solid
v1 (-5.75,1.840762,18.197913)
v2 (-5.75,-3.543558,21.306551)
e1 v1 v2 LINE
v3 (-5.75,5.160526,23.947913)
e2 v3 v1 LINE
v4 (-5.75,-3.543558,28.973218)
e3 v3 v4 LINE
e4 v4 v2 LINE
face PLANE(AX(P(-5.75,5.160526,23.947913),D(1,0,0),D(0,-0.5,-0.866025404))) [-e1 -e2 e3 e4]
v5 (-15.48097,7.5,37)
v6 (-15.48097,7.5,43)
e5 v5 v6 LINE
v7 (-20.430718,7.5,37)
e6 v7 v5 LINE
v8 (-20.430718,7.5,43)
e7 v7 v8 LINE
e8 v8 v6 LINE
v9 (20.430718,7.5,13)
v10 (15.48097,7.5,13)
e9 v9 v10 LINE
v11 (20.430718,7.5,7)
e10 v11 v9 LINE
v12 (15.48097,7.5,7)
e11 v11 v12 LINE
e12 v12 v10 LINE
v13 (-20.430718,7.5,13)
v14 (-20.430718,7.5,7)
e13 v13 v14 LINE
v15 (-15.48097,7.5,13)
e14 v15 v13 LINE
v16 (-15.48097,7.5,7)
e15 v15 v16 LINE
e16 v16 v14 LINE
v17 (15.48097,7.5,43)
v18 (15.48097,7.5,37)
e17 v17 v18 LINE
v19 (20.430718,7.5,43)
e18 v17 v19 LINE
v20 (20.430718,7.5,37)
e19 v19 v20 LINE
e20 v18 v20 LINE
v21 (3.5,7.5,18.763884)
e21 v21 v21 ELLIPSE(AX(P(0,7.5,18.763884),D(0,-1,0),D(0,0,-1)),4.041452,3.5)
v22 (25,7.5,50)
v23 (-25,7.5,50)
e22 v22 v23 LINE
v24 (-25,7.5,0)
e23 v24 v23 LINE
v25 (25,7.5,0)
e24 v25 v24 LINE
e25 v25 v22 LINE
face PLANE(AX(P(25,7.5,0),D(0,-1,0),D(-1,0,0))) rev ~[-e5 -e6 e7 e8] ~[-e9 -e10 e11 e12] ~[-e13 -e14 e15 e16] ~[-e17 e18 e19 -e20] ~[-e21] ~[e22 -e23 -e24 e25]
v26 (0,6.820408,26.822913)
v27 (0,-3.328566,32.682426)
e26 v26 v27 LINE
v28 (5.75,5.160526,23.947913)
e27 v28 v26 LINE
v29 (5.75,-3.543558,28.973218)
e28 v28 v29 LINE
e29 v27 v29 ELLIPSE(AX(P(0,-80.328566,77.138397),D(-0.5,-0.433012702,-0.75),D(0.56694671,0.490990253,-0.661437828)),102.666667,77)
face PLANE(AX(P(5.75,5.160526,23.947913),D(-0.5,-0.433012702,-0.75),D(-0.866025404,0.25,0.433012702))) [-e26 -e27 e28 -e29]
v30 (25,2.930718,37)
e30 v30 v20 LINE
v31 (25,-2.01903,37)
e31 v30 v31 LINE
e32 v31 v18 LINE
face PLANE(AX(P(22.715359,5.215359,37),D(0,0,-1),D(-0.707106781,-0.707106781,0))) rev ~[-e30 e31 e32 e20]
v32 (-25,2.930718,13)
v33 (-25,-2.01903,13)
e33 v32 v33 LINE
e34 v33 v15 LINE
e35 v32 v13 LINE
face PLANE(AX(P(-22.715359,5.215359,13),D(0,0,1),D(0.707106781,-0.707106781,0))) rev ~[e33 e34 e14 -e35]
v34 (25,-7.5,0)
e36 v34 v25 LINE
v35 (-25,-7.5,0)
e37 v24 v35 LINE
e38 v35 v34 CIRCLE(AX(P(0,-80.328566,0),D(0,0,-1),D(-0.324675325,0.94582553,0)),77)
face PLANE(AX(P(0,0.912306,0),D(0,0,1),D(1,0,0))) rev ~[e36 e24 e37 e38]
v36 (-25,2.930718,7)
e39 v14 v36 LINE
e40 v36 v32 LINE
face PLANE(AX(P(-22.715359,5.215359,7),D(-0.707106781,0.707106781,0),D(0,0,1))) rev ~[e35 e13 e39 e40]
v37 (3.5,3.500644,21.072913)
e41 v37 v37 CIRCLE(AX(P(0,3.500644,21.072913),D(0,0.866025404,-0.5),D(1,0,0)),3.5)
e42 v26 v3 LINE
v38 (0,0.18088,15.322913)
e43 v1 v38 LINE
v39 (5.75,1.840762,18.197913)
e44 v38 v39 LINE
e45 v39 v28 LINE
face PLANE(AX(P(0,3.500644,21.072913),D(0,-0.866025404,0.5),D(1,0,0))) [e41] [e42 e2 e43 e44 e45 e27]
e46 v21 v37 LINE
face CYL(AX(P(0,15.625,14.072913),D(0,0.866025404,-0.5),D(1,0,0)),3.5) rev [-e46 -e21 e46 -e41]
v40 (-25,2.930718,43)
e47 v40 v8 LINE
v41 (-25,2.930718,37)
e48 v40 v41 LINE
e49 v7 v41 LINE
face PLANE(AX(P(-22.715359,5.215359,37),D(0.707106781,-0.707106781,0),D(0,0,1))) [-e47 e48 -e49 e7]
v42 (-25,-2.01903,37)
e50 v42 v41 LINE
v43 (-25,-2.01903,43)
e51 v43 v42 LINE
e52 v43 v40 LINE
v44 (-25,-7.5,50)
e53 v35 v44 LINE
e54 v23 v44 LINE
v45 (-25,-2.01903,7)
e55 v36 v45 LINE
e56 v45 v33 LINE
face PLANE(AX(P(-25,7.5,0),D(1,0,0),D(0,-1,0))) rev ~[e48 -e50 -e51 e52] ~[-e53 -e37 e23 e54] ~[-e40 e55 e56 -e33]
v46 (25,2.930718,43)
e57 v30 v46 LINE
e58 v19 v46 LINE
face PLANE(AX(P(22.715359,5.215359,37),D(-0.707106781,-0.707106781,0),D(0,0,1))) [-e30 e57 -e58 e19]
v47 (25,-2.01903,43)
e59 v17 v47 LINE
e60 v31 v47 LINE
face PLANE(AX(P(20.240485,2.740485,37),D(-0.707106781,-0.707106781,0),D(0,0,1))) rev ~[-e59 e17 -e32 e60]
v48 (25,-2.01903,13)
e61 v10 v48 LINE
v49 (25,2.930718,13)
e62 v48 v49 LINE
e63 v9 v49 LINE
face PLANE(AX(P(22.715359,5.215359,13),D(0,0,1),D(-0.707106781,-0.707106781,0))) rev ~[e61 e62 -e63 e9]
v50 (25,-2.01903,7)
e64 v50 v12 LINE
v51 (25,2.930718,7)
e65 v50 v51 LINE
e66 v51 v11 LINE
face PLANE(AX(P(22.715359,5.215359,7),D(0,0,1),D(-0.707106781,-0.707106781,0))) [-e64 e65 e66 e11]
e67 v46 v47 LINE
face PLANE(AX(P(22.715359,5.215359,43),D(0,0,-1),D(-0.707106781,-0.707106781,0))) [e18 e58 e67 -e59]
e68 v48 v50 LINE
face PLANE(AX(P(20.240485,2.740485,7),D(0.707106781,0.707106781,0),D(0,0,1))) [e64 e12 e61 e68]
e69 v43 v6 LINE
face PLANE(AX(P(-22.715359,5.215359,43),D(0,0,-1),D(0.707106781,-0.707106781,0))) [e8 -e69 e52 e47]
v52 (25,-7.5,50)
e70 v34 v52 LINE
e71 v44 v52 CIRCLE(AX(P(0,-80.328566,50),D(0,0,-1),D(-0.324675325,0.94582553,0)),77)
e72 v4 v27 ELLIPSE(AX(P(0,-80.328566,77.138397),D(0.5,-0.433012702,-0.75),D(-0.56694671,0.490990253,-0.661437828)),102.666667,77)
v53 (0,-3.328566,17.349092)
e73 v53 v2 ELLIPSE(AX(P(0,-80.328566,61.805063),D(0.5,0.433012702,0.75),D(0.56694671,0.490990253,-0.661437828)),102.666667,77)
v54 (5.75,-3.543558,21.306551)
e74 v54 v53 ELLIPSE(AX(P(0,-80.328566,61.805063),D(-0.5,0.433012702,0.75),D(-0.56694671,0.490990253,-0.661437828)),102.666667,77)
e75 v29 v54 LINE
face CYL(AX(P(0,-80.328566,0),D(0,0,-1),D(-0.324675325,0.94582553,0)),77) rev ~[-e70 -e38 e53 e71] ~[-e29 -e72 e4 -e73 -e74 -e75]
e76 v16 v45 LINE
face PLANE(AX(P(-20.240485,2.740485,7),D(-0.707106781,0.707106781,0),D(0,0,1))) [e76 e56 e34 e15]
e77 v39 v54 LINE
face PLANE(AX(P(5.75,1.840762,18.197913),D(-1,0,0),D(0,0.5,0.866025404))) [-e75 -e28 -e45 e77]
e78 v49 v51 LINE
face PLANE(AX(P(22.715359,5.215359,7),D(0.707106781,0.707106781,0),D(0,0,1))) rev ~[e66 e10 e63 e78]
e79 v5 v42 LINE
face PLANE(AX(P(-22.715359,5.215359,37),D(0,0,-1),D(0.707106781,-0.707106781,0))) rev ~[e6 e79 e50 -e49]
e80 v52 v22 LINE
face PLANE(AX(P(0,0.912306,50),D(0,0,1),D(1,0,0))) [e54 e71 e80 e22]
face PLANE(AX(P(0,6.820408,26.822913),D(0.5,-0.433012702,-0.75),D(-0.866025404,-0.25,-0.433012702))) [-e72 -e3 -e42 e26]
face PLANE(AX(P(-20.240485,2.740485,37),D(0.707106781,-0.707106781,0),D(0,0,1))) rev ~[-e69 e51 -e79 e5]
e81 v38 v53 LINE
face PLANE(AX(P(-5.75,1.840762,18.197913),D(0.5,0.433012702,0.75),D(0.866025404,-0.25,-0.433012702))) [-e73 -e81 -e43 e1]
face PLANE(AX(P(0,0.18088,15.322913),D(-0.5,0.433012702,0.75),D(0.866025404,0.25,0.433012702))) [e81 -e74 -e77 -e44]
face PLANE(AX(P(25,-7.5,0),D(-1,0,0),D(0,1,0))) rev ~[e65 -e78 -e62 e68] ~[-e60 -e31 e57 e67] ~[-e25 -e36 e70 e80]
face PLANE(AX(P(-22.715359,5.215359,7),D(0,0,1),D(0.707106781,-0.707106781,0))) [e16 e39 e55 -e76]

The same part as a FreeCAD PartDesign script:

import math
import FreeCAD as App
import Part
import Sketcher

V = App.Vector
Q = App.Units.Quantity


def add_polygon(sketch, points):
    """Adds a closed chain of lines whose ends are joined by coincident constraints."""
    first, n = sketch.GeometryCount, len(points)
    for a, b in zip(points, points[1:] + points[:1]):
        sketch.addGeometry(Part.LineSegment(App.Vector(*a, 0), App.Vector(*b, 0)), False)
    for i in range(n):
        sketch.addConstraint(Sketcher.Constraint("Coincident", first + i, 2, first + (i + 1) % n, 1))

doc = App.newDocument("Part")
body = doc.addObject("PartDesign::Body", "Body")

# Sketch on XY plane
sketch1 = body.newObject("Sketcher::SketchObject", "Sketch")
sketch1.AttachmentSupport = (doc.getObject("XY_Plane"), [""])
sketch1.MapMode = "FlatFace"
sketch1.addGeometry([
    Part.ArcOfCircle(Part.Circle(V(0, -80, 0), V(0, 0, 1), 77), math.radians(71), math.radians(109)),
    Part.LineSegment(V(25, -8, 0), V(25, 8, 0)),
    Part.LineSegment(V(25, 8, 0), V(-25, 8, 0)),
    Part.LineSegment(V(-25, 8, 0), V(-25, -8, 0)),
], False)
sketch1.addConstraint([
    Sketcher.Constraint("Coincident", 0, 1, 1, 1),
    Sketcher.Constraint("Coincident", 1, 2, 2, 1),
    Sketcher.Constraint("Coincident", 2, 2, 3, 1),
    Sketcher.Constraint("Coincident", 3, 2, 0, 2),
    Sketcher.Constraint("Vertical", 1),
    Sketcher.Constraint("Horizontal", 2),
    Sketcher.Constraint("Vertical", 3),
    Sketcher.Constraint("Symmetric", 0, 1, 2, 2, -1, 1),
    Sketcher.Constraint("PointOnObject", 0, 3, -2),
    Sketcher.Constraint("Radius", 0, 77.0),
    Sketcher.Constraint("DistanceX", 2, 2, 2, 1, 50.0),
    Sketcher.Constraint("DistanceY", 1, 1, 1, 2, 15.0),
])
pad1 = body.newObject("PartDesign::Pad", "Pad")
pad1.Profile = sketch1
pad1.Length = 50

# Sketch on an angled plane
sketch2 = body.newObject("Sketcher::SketchObject", "Sketch001")
sketch2.Placement = App.Placement(V(0, 5.625, -3.247595), App.Rotation(V(1, 0, 0), V(0, 0.5, 0.866025404), V(0, -0.866025404, 0.5), "ZXY"))
sketch2.addGeometry(Part.Circle(V(0, 20, 0), V(0, 0, 1), 3.5), False)
sketch2.addConstraint([
    Sketcher.Constraint("PointOnObject", 0, 3, -2),
    Sketcher.Constraint("Diameter", 0, 7.0),
    Sketcher.Constraint("DistanceY", -1, 1, 0, 3, 20.0),
])
pocket1 = body.newObject("PartDesign::Pocket", "Pocket")
pocket1.Profile = sketch2
pocket1.Length = 25
pocket1.Reversed = True

# Sketch on an angled plane
sketch3 = body.newObject("Sketcher::SketchObject", "Sketch002")
sketch3.Placement = App.Placement(V(0, -6.499356, 3.752405), App.Rotation(V(1, 0, 0), V(0, 0.5, 0.866025404), V(0, -0.866025404, 0.5), "ZXY"))
add_polygon(sketch3, [(-6, 23), (-6, 17), (0, 13), (6, 17), (6, 23), (0, 27)])  # lines 0-5
sketch3.addConstraint([
    Sketcher.Constraint("Vertical", 0),
    Sketcher.Constraint("Vertical", 3),
    Sketcher.Constraint("Symmetric", 0, 2, 2, 2, -2),
    Sketcher.Constraint("PointOnObject", 1, 2, -2),
    Sketcher.Constraint("PointOnObject", 4, 2, -2),
    Sketcher.Constraint("Parallel", 1, 4),
    Sketcher.Constraint("Parallel", 2, 5),
    Sketcher.Constraint("Angle", 1, Q("-30 deg")),
    Sketcher.Constraint("DistanceX", 0, 2, 2, 2, 11.5),
    Sketcher.Constraint("DistanceY", 0, 2, 0, 1, 6.639528),
    Sketcher.Constraint("DistanceY", -1, 1, 1, 2, 13.360472),
])
pocket2 = body.newObject("PartDesign::Pocket", "Pocket001")
pocket2.Profile = sketch3
pocket2.Length = 18
pocket2.Reversed = True

# Sketch on an angled plane
sketch4 = body.newObject("Sketcher::SketchObject", "Sketch003")
sketch4.Placement = App.Placement(V(8.75, -8.75, 0), App.Rotation(V(-0.707106781, -0.707106781, 0), V(0, 0, 0.999999999), V(-0.707106781, 0.707106781, 0), "ZXY"))
add_polygon(sketch4, [(-19.7, 13), (-19.7, 7), (-16.2, 7), (-16.2, 13)])  # lines 0-3
add_polygon(sketch4, [(-19.7, 43), (-19.7, 37), (-16.2, 37), (-16.2, 43)])  # lines 4-7
sketch4.addConstraint([
    Sketcher.Constraint("Vertical", 0),
    Sketcher.Constraint("Horizontal", 1),
    Sketcher.Constraint("Vertical", 2),
    Sketcher.Constraint("Horizontal", 3),
    Sketcher.Constraint("Vertical", 4),
    Sketcher.Constraint("Horizontal", 5),
    Sketcher.Constraint("Vertical", 6),
    Sketcher.Constraint("Horizontal", 7),
    Sketcher.Constraint("Vertical", 3, 2, 4, 2),
    Sketcher.Constraint("Vertical", 2, 2, 5, 2),
    Sketcher.Constraint("Equal", 2, 4),
    Sketcher.Constraint("DistanceY", 0, 2, 0, 1, 6.0),
    Sketcher.Constraint("DistanceX", 1, 1, 1, 2, 3.5),
    Sketcher.Constraint("DistanceY", -1, 1, 0, 2, 7.0),
    Sketcher.Constraint("DistanceY", -1, 1, 4, 2, 37.0),
    Sketcher.Constraint("DistanceX", 0, 2, -1, 1, 19.75),
])
pocket3 = body.newObject("PartDesign::Pocket", "Pocket002")
pocket3.Profile = sketch4
pocket3.Length = 25
pocket3.Midplane = True

# Sketch on an angled plane
sketch5 = body.newObject("Sketcher::SketchObject", "Sketch004")
sketch5.Placement = App.Placement(V(-8.75, -8.75, 0), App.Rotation(V(0.707106781, -0.707106781, 0), V(0, 0, 0.999999999), V(-0.707106781, -0.707106781, 0), "ZXY"))
add_polygon(sketch5, [(-19.7, 13), (-19.7, 7), (-16.2, 7), (-16.2, 13)])  # lines 0-3
add_polygon(sketch5, [(-19.7, 43), (-19.7, 37), (-16.2, 37), (-16.2, 43)])  # lines 4-7
sketch5.addConstraint([
    Sketcher.Constraint("Vertical", 0),
    Sketcher.Constraint("Horizontal", 1),
    Sketcher.Constraint("Vertical", 2),
    Sketcher.Constraint("Horizontal", 3),
    Sketcher.Constraint("Vertical", 4),
    Sketcher.Constraint("Horizontal", 5),
    Sketcher.Constraint("Vertical", 6),
    Sketcher.Constraint("Horizontal", 7),
    Sketcher.Constraint("Vertical", 3, 2, 4, 2),
    Sketcher.Constraint("Vertical", 2, 2, 5, 2),
    Sketcher.Constraint("Equal", 2, 4),
    Sketcher.Constraint("DistanceY", 0, 2, 0, 1, 6.0),
    Sketcher.Constraint("DistanceX", 1, 1, 1, 2, 3.5),
    Sketcher.Constraint("DistanceY", -1, 1, 0, 2, 7.0),
    Sketcher.Constraint("DistanceY", -1, 1, 4, 2, 37.0),
    Sketcher.Constraint("DistanceX", 0, 2, -1, 1, 19.75),
])
pocket4 = body.newObject("PartDesign::Pocket", "Pocket003")
pocket4.Profile = sketch5
pocket4.Length = 25
pocket4.Midplane = True

doc.recompute()
